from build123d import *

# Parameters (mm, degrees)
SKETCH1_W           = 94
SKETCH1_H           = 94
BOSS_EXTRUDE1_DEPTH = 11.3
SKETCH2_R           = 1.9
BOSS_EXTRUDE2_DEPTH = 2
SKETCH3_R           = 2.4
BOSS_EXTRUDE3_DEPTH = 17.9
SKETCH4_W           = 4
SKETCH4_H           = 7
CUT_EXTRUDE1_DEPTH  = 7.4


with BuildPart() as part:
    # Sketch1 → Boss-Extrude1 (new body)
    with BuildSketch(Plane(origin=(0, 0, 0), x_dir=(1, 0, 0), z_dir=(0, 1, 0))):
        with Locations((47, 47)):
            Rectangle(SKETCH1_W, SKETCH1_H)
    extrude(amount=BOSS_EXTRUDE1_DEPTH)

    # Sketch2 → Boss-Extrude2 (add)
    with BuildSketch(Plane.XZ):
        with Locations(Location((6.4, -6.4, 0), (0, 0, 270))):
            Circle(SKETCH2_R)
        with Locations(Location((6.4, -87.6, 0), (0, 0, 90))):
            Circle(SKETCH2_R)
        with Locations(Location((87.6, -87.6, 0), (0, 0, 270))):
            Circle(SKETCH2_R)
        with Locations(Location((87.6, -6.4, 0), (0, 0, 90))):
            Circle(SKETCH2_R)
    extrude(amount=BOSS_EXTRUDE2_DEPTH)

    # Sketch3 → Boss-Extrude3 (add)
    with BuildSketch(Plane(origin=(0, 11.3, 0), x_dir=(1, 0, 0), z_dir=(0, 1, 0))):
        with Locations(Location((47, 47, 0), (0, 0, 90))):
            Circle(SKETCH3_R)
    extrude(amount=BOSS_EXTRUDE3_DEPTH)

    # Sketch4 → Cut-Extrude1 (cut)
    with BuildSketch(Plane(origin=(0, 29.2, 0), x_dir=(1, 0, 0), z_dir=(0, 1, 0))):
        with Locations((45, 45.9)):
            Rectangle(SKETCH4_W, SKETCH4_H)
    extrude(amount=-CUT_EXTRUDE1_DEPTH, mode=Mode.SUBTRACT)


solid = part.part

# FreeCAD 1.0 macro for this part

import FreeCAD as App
import Part
import Sketcher
Q = App.Units.Quantity


def add_polygon(sketch, points):
    """Adds a closed chain of lines whose ends are joined by coincident constraints."""
    first, n = sketch.GeometryCount, len(points)
    for a, b in zip(points, points[1:] + points[:1]):
        sketch.addGeometry(Part.LineSegment(App.Vector(*a, 0), App.Vector(*b, 0)), False)
    for i in range(n):
        sketch.addConstraint(Sketcher.Constraint("Coincident", first + i, 2, first + (i + 1) % n, 1))

doc = App.newDocument("Part")
body = doc.addObject("PartDesign::Body", "Body")

# Sketch on XZ plane
sketch1 = body.newObject("Sketcher::SketchObject", "Sketch")
sketch1.AttachmentSupport = (doc.getObject("XZ_Plane"), [""])
sketch1.MapMode = "FlatFace"
add_polygon(sketch1, [(0, -94), (0, 0), (94, 0), (94, -94)])  # lines 0-3
sketch1.addConstraint([
    Sketcher.Constraint("Vertical", 0),
    Sketcher.Constraint("Horizontal", 1),
    Sketcher.Constraint("Vertical", 2),
    Sketcher.Constraint("Horizontal", 3),
    Sketcher.Constraint("Coincident", 0, 2, -1, 1),
    Sketcher.Constraint("Equal", 3, 0),
    Sketcher.Constraint("DistanceX", 1, 1, 1, 2, Q("94 mm")),
])
pad1 = body.newObject("PartDesign::Pad", "Pad")
pad1.Profile = sketch1
pad1.Length = 11.3
pad1.Reversed = True

# Sketch on XZ plane
sketch2 = body.newObject("Sketcher::SketchObject", "Sketch001")
sketch2.AttachmentSupport = (doc.getObject("XZ_Plane"), [""])
sketch2.MapMode = "FlatFace"
sketch2.addGeometry([
    Part.Circle(App.Vector(6.4, -6.4, 0), App.Vector(0, 0, 1), 1.9),
    Part.Circle(App.Vector(6.4, -87.6, 0), App.Vector(0, 0, 1), 1.9),
    Part.Circle(App.Vector(87.6, -87.6, 0), App.Vector(0, 0, 1), 1.9),
    Part.Circle(App.Vector(87.6, -6.4, 0), App.Vector(0, 0, 1), 1.9),
], False)
sketch2.addConstraint([
    Sketcher.Constraint("Equal", 0, 1),
    Sketcher.Constraint("Equal", 1, 2),
    Sketcher.Constraint("Equal", 2, 3),
    Sketcher.Constraint("Horizontal", 1, 3, 2, 3),
    Sketcher.Constraint("Horizontal", 0, 3, 3, 3),
    Sketcher.Constraint("Vertical", 0, 3, 1, 3),
    Sketcher.Constraint("Vertical", 2, 3, 3, 3),
    Sketcher.Constraint("Diameter", 0, Q("3.8 mm")),
    Sketcher.Constraint("DistanceX", -1, 1, 0, 3, Q("6.4 mm")),
    Sketcher.Constraint("DistanceY", 0, 3, -1, 1, Q("6.4 mm")),
    Sketcher.Constraint("DistanceY", 1, 3, -1, 1, Q("87.6 mm")),
    Sketcher.Constraint("DistanceX", -1, 1, 2, 3, Q("87.6 mm")),
])
pad2 = body.newObject("PartDesign::Pad", "Pad001")
pad2.Profile = sketch2
pad2.Length = 2

# Sketch on XZ plane
sketch3 = body.newObject("Sketcher::SketchObject", "Sketch002")
sketch3.AttachmentSupport = (doc.getObject("XZ_Plane"), [""])
sketch3.MapMode = "FlatFace"
sketch3.AttachmentOffset = App.Placement(App.Vector(0, 0, -11.3), App.Rotation())
sketch3.addGeometry(Part.Circle(App.Vector(47, -47, 0), App.Vector(0, 0, 1), 2.4), False)
sketch3.addConstraint([
    Sketcher.Constraint("Diameter", 0, Q("4.8 mm")),
    Sketcher.Constraint("DistanceX", -1, 1, 0, 3, Q("47 mm")),
    Sketcher.Constraint("DistanceY", 0, 3, -1, 1, Q("47 mm")),
])
pad3 = body.newObject("PartDesign::Pad", "Pad002")
pad3.Profile = sketch3
pad3.Length = 17.9
pad3.Reversed = True

# Sketch on XZ plane
sketch4 = body.newObject("Sketcher::SketchObject", "Sketch003")
sketch4.AttachmentSupport = (doc.getObject("XZ_Plane"), [""])
sketch4.MapMode = "FlatFace"
sketch4.AttachmentOffset = App.Placement(App.Vector(0, 0, -29.2), App.Rotation())
add_polygon(sketch4, [(43, -49.4), (43, -42.4), (47, -42.4), (47, -49.4)])  # lines 0-3
sketch4.addConstraint([
    Sketcher.Constraint("Vertical", 0),
    Sketcher.Constraint("Horizontal", 1),
    Sketcher.Constraint("Vertical", 2),
    Sketcher.Constraint("Horizontal", 3),
    Sketcher.Constraint("DistanceX", 1, 1, 1, 2, Q("4 mm")),
    Sketcher.Constraint("DistanceY", 0, 1, 0, 2, Q("7 mm")),
    Sketcher.Constraint("DistanceX", -1, 1, 0, 2, Q("43 mm")),
    Sketcher.Constraint("DistanceY", 0, 2, -1, 1, Q("42.4 mm")),
])
pocket1 = body.newObject("PartDesign::Pocket", "Pocket")
pocket1.Profile = sketch4
pocket1.Length = 7.4
pocket1.Reversed = True

doc.recompute()
